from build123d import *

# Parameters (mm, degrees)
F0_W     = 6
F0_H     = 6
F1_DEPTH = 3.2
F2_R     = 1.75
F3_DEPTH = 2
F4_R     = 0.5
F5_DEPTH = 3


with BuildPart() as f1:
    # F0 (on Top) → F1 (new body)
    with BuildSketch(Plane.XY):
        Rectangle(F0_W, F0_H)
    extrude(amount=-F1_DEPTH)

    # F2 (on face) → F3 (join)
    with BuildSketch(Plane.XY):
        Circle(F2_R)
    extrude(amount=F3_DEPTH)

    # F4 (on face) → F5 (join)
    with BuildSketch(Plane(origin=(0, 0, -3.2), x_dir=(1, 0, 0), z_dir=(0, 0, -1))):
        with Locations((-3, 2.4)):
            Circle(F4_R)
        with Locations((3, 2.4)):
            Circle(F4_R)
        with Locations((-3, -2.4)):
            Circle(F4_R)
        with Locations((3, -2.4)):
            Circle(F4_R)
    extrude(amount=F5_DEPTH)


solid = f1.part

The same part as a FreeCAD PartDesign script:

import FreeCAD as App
import Part
import Sketcher


def add_polygon(sketch, points):
    """Adds a closed chain of lines whose ends are joined by coincident constraints."""
    first, n = sketch.GeometryCount, len(points)
    for a, b in zip(points, points[1:] + points[:1]):
        sketch.addGeometry(Part.LineSegment(App.Vector(*a, 0), App.Vector(*b, 0)), False)
    for i in range(n):
        sketch.addConstraint(Sketcher.Constraint("Coincident", first + i, 2, first + (i + 1) % n, 1))

doc = App.newDocument("Part")
body = doc.addObject("PartDesign::Body", "Body")

# Sketch on XY plane
sketch1 = body.newObject("Sketcher::SketchObject", "Sketch")
sketch1.AttachmentSupport = (doc.getObject("XY_Plane"), [""])
sketch1.MapMode = "FlatFace"
add_polygon(sketch1, [(-3, 3), (-3, -3), (3, -3), (3, 3)])  # lines 0-3
sketch1.addConstraint(Sketcher.Constraint("Vertical", 0))
sketch1.addConstraint(Sketcher.Constraint("Horizontal", 1))
sketch1.addConstraint(Sketcher.Constraint("Vertical", 2))
sketch1.addConstraint(Sketcher.Constraint("Horizontal", 3))
sketch1.addConstraint(Sketcher.Constraint("Symmetric", 0, 2, 2, 2, -1, 1))
sketch1.addConstraint(Sketcher.Constraint("Equal", 3, 0))
sketch1.addConstraint(Sketcher.Constraint("DistanceX", 1, 1, 1, 2, 6.0))
pad1 = body.newObject("PartDesign::Pad", "Pad")
pad1.Profile = sketch1
pad1.Length = 3.2
pad1.Reversed = True

# Sketch on XY plane
sketch2 = body.newObject("Sketcher::SketchObject", "Sketch001")
sketch2.AttachmentSupport = (doc.getObject("XY_Plane"), [""])
sketch2.MapMode = "FlatFace"
sketch2.addGeometry(Part.Circle(App.Vector(0, 0, 0), App.Vector(0, 0, 1), 1.8), False)
sketch2.addConstraint(Sketcher.Constraint("Coincident", 0, 3, -1, 1))
sketch2.addConstraint(Sketcher.Constraint("Diameter", 0, 3.5))
pad2 = body.newObject("PartDesign::Pad", "Pad001")
pad2.Profile = sketch2
pad2.Length = 2

# Sketch on XY plane
sketch3 = body.newObject("Sketcher::SketchObject", "Sketch002")
sketch3.AttachmentSupport = (doc.getObject("XY_Plane"), [""])
sketch3.MapMode = "FlatFace"
sketch3.AttachmentOffset = App.Placement(App.Vector(0, 0, -3.2), App.Rotation())
sketch3.addGeometry(Part.Circle(App.Vector(-3, -2.4, 0), App.Vector(0, 0, 1), 0.5), False)
sketch3.addGeometry(Part.Circle(App.Vector(3, -2.4, 0), App.Vector(0, 0, 1), 0.5), False)
sketch3.addGeometry(Part.Circle(App.Vector(-3, 2.4, 0), App.Vector(0, 0, 1), 0.5), False)
sketch3.addGeometry(Part.Circle(App.Vector(3, 2.4, 0), App.Vector(0, 0, 1), 0.5), False)
sketch3.addConstraint(Sketcher.Constraint("Equal", 0, 1))
sketch3.addConstraint(Sketcher.Constraint("Equal", 1, 2))
sketch3.addConstraint(Sketcher.Constraint("Equal", 2, 3))
sketch3.addConstraint(Sketcher.Constraint("Symmetric", 1, 3, 2, 3, -1, 1))
sketch3.addConstraint(Sketcher.Constraint("Symmetric", 0, 3, 3, 3, -1, 1))
sketch3.addConstraint(Sketcher.Constraint("Symmetric", 0, 3, 1, 3, -2))
sketch3.addConstraint(Sketcher.Constraint("Diameter", 0, 1.0))
sketch3.addConstraint(Sketcher.Constraint("DistanceX", 0, 3, -1, 1, 3.0))
sketch3.addConstraint(Sketcher.Constraint("DistanceY", 0, 3, -1, 1, 2.4))
pad3 = body.newObject("PartDesign::Pad", "Pad002")
pad3.Profile = sketch3
pad3.Length = 3
pad3.Reversed = True

doc.recompute()
